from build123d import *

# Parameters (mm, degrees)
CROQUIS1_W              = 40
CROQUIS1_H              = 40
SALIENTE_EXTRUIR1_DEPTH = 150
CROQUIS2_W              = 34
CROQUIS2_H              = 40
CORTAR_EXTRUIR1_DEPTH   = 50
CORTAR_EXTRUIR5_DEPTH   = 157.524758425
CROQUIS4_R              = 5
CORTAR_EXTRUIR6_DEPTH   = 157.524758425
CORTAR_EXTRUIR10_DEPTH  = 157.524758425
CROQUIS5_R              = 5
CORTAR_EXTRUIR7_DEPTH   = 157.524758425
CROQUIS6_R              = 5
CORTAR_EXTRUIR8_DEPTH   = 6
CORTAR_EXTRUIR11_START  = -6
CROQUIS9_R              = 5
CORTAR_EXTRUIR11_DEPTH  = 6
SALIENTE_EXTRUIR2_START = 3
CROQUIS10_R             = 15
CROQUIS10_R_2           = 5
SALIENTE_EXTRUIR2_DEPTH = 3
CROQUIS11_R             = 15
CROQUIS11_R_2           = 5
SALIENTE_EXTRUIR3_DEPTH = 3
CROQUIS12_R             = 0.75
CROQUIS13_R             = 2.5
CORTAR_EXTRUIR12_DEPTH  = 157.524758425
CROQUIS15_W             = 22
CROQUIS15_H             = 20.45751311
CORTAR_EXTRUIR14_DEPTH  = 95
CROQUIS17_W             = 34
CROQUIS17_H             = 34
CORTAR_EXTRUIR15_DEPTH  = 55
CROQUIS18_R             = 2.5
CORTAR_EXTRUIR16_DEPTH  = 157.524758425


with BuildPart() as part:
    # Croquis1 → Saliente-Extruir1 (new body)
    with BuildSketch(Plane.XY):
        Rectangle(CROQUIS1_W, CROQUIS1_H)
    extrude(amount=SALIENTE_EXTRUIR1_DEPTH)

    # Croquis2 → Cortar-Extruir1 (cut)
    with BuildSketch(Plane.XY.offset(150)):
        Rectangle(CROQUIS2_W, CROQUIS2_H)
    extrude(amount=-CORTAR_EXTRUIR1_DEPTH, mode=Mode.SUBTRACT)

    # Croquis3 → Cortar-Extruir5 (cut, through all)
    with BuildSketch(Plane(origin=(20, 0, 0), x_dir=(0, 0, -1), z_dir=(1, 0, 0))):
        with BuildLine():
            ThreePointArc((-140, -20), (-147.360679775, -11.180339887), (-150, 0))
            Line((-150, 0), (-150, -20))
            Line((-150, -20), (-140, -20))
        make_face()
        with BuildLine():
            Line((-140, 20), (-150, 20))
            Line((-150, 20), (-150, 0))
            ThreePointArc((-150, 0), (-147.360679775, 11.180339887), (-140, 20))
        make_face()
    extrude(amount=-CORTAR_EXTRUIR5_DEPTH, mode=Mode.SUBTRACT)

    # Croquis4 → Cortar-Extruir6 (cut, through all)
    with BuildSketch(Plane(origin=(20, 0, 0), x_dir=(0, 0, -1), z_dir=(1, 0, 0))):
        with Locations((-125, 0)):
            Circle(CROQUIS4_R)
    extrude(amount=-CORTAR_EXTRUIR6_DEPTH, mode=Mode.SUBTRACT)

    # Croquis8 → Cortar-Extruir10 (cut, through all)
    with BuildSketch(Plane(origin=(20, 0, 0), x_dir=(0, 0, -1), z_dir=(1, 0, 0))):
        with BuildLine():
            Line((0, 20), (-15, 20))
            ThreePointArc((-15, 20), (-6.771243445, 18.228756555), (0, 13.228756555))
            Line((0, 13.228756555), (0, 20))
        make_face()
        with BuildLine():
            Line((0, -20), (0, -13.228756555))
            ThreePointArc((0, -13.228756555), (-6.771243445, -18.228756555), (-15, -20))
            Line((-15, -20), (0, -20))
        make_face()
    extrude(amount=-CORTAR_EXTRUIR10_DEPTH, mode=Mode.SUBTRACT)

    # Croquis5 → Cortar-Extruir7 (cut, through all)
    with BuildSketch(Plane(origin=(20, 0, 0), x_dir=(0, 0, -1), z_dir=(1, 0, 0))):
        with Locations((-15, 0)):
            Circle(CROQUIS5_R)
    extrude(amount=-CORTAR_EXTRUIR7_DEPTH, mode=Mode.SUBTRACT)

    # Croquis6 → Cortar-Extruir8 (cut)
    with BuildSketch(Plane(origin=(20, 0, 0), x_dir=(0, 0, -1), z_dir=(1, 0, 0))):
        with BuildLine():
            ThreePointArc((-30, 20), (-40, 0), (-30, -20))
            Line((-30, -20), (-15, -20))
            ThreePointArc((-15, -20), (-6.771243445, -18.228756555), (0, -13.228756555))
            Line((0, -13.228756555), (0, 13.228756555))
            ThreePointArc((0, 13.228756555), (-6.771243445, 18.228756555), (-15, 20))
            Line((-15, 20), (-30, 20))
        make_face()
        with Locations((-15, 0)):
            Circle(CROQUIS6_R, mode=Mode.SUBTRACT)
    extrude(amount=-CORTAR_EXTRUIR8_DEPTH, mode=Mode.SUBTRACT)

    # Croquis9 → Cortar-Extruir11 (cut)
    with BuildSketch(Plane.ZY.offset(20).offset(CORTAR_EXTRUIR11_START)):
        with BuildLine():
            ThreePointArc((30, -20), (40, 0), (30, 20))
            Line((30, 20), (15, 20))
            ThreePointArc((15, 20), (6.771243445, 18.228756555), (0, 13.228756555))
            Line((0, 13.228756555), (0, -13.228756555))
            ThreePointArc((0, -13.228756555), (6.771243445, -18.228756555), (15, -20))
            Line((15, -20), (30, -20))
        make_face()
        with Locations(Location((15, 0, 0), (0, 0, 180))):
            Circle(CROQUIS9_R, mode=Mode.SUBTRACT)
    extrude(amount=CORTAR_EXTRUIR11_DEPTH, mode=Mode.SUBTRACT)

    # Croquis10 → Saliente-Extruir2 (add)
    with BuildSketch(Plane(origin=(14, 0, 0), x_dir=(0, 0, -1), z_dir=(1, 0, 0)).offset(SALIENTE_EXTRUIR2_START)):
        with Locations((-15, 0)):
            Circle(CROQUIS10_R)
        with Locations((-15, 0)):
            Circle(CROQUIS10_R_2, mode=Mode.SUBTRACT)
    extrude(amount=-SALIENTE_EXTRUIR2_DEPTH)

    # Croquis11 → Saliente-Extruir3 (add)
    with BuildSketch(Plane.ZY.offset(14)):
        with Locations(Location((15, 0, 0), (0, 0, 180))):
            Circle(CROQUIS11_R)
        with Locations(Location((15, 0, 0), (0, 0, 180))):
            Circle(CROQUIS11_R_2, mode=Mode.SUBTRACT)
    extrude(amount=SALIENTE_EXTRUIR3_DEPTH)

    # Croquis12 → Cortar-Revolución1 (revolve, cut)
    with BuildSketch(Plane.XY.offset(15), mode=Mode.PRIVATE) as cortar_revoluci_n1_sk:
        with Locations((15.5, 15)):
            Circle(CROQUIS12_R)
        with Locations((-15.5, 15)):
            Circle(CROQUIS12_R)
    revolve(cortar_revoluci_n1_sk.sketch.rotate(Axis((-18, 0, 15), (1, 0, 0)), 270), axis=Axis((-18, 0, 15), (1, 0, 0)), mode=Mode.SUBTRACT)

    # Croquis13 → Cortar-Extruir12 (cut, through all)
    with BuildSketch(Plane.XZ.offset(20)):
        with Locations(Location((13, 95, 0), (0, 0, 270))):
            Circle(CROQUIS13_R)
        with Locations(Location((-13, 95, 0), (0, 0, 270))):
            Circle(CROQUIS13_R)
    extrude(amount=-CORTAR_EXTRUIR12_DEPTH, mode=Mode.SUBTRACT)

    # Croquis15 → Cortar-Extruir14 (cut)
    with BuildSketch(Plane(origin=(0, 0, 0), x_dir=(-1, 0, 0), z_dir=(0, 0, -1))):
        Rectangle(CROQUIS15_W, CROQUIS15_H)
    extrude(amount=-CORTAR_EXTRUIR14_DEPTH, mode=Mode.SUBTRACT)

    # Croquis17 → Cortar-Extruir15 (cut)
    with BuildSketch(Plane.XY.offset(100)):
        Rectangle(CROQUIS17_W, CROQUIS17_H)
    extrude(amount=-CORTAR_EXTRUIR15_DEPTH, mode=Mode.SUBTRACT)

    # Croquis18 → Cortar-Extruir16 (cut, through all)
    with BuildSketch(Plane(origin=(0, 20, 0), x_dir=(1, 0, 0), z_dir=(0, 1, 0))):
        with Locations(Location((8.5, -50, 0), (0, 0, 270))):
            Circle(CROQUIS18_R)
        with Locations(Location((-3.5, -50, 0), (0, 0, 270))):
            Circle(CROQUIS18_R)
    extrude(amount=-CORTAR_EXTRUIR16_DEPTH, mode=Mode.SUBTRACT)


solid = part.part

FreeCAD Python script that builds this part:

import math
import FreeCAD as App
import Part
import Sketcher

V = App.Vector
Q = App.Units.Quantity


def add_polygon(sketch, points):
    """Adds a closed chain of lines whose ends are joined by coincident constraints."""
    first, n = sketch.GeometryCount, len(points)
    for a, b in zip(points, points[1:] + points[:1]):
        sketch.addGeometry(Part.LineSegment(App.Vector(*a, 0), App.Vector(*b, 0)), False)
    for i in range(n):
        sketch.addConstraint(Sketcher.Constraint("Coincident", first + i, 2, first + (i + 1) % n, 1))

doc = App.newDocument("Part")
params = doc.addObject("Spreadsheet::Sheet", "Params")
for row, (alias, value) in enumerate([
    ("sketch1_width", "40 mm"),
    ("pad1_length", "150 mm"),
    ("sketch2_width", "34 mm"),
    ("sketch2_height", "40 mm"),
    ("pocket1_length", "50 mm"),
    ("sketch3_radius", "25 mm"),
    ("sketch3_width", "20 mm"),
    ("sketch4_diameter", "10 mm"),
    ("sketch5_radius", "20 mm"),
    ("sketch5_height", "15 mm"),
    ("sketch6_diameter", "10 mm"),
    ("sketch7_diameter", "10 mm"),
    ("sketch7_radius", "25 mm"),
    ("sketch7_radius2", "20 mm"),
    ("pocket6_length", "6 mm"),
    ("sketch8_diameter", "10 mm"),
    ("sketch8_radius", "25 mm"),
    ("sketch8_radius2", "20 mm"),
    ("pocket7_length", "6 mm"),
    ("sketch9_diameter", "30 mm"),
    ("sketch9_diameter2", "10 mm"),
    ("pad2_length", "3 mm"),
    ("sketch10_diameter", "30 mm"),
    ("sketch10_diameter2", "10 mm"),
    ("pad3_length", "3 mm"),
    ("sketch11_diameter", "1.5 mm"),
    ("groove_angle", "360 deg"),
    ("sketch12_diameter", "5 mm"),
    ("sketch13_width", "22 mm"),
    ("pocket9_length", "95 mm"),
    ("sketch14_width", "34 mm"),
    ("pocket10_length", "55 mm"),
    ("sketch15_diameter", "5 mm"),
], start=1):
    params.set(f"A{row}", alias)
    params.set(f"B{row}", "=" + value)
    params.setAlias(f"B{row}", alias)

body = doc.addObject("PartDesign::Body", "Body")

# Sketch on XY plane
sketch1 = doc.addObject("Sketcher::SketchObject", "Sketch")
body.addObject(sketch1)
sketch1.AttachmentSupport = (doc.XY_Plane, [""])
sketch1.MapMode = "FlatFace"
add_polygon(sketch1, [(-20, 20), (-20, -20), (20, -20), (20, 20)])  # lines 0-3
sketch1.addConstraint(Sketcher.Constraint("Vertical", 0))
sketch1.addConstraint(Sketcher.Constraint("Horizontal", 1))
sketch1.addConstraint(Sketcher.Constraint("Vertical", 2))
sketch1.addConstraint(Sketcher.Constraint("Horizontal", 3))
sketch1.addConstraint(Sketcher.Constraint("Symmetric", 0, 2, 2, 2, -1, 1))
sketch1.addConstraint(Sketcher.Constraint("Equal", 3, 0))
sketch1.addConstraint(Sketcher.Constraint("DistanceX", 1, 1, 1, 2, Q("40 mm")))
sketch1.setExpression("Constraints[10]", "Params.sketch1_width")
pad1 = doc.addObject("PartDesign::Pad", "Pad")
body.addObject(pad1)
pad1.Profile = sketch1
pad1.setExpression("Length", "Params.pad1_length")

# Sketch on XY plane
sketch2 = doc.addObject("Sketcher::SketchObject", "Sketch001")
body.addObject(sketch2)
sketch2.AttachmentSupport = (doc.XY_Plane, [""])
sketch2.MapMode = "FlatFace"
sketch2.AttachmentOffset = App.Placement(V(0, 0, 150), App.Rotation())
add_polygon(sketch2, [(-17, 20), (-17, -20), (17, -20), (17, 20)])  # lines 0-3
sketch2.addConstraint(Sketcher.Constraint("Vertical", 0))
sketch2.addConstraint(Sketcher.Constraint("Horizontal", 1))
sketch2.addConstraint(Sketcher.Constraint("Vertical", 2))
sketch2.addConstraint(Sketcher.Constraint("Horizontal", 3))
sketch2.addConstraint(Sketcher.Constraint("Symmetric", 0, 2, 2, 2, -1, 1))
sketch2.addConstraint(Sketcher.Constraint("DistanceX", 1, 1, 1, 2, Q("34 mm")))
sketch2.addConstraint(Sketcher.Constraint("DistanceY", 0, 2, 0, 1, Q("40 mm")))
sketch2.setExpression("Constraints[9]", "Params.sketch2_width")
sketch2.setExpression("Constraints[10]", "Params.sketch2_height")
pocket1 = doc.addObject("PartDesign::Pocket", "Pocket")
body.addObject(pocket1)
pocket1.Profile = sketch2
pocket1.setExpression("Length", "Params.pocket1_length")

# Sketch on YZ plane
sketch3 = doc.addObject("Sketcher::SketchObject", "Sketch002")
body.addObject(sketch3)
sketch3.AttachmentSupport = (doc.YZ_Plane, [""])
sketch3.MapMode = "FlatFace"
sketch3.AttachmentOffset = App.Placement(V(0, 0, 20), App.Rotation())
sketch3.addGeometry(Part.ArcOfCircle(Part.Circle(V(0, 125, 0), V(0, 0, 1), 25), math.radians(90), math.radians(143.130102)), False)
sketch3.addGeometry(Part.LineSegment(V(0, 150, 0), V(-20, 150, 0)), False)
sketch3.addGeometry(Part.LineSegment(V(-20, 150, 0), V(-20, 140, 0)), False)
sketch3.addGeometry(Part.LineSegment(V(20, 140, 0), V(20, 150, 0)), False)
sketch3.addGeometry(Part.LineSegment(V(20, 150, 0), V(0, 150, 0)), False)
sketch3.addGeometry(Part.ArcOfCircle(Part.Circle(V(0, 125, 0), V(0, 0, 1), 25), math.radians(36.869898), math.radians(90)), False)
sketch3.addConstraint(Sketcher.Constraint("Tangent", 0, 1, 1, 1))
sketch3.addConstraint(Sketcher.Constraint("Coincident", 1, 2, 2, 1))
sketch3.addConstraint(Sketcher.Constraint("Coincident", 2, 2, 0, 2))
sketch3.addConstraint(Sketcher.Constraint("Coincident", 3, 2, 4, 1))
sketch3.addConstraint(Sketcher.Constraint("Tangent", 4, 2, 5, 2))
sketch3.addConstraint(Sketcher.Constraint("Coincident", 5, 1, 3, 1))
sketch3.addConstraint(Sketcher.Constraint("Horizontal", 1))
sketch3.addConstraint(Sketcher.Constraint("Vertical", 2))
sketch3.addConstraint(Sketcher.Constraint("Vertical", 3))
sketch3.addConstraint(Sketcher.Constraint("Horizontal", 4))
sketch3.addConstraint(Sketcher.Constraint("Coincident", 5, 3, 0, 3))
sketch3.addConstraint(Sketcher.Constraint("Equal", 0, 5))
sketch3.addConstraint(Sketcher.Constraint("Symmetric", 2, 2, 5, 1, -2))
sketch3.addConstraint(Sketcher.Constraint("Radius", 0, Q("25 mm")))
sketch3.addConstraint(Sketcher.Constraint("DistanceX", 1, 2, 1, 1, Q("20 mm")))
sketch3.addConstraint(Sketcher.Constraint("DistanceY", -1, 1, 0, 3, Q("125 mm")))
sketch3.setExpression("Constraints[13]", "Params.sketch3_radius")
sketch3.setExpression("Constraints[14]", "Params.sketch3_width")
pocket2 = doc.addObject("PartDesign::Pocket", "Pocket001")
body.addObject(pocket2)
pocket2.Profile = sketch3
pocket2.Type = "ThroughAll"

# Sketch on YZ plane
sketch4 = doc.addObject("Sketcher::SketchObject", "Sketch003")
body.addObject(sketch4)
sketch4.AttachmentSupport = (doc.YZ_Plane, [""])
sketch4.MapMode = "FlatFace"
sketch4.AttachmentOffset = App.Placement(V(0, 0, 20), App.Rotation())
sketch4.addGeometry(Part.Circle(V(0, 125, 0), V(0, 0, 1), 5), False)
sketch4.addConstraint(Sketcher.Constraint("PointOnObject", 0, 3, -2))
sketch4.addConstraint(Sketcher.Constraint("Diameter", 0, Q("10 mm")))
sketch4.addConstraint(Sketcher.Constraint("DistanceY", -1, 1, 0, 3, Q("125 mm")))
sketch4.setExpression("Constraints[1]", "Params.sketch4_diameter")
pocket3 = doc.addObject("PartDesign::Pocket", "Pocket002")
body.addObject(pocket3)
pocket3.Profile = sketch4
pocket3.Type = "ThroughAll"

# Sketch on YZ plane
sketch5 = doc.addObject("Sketcher::SketchObject", "Sketch004")
body.addObject(sketch5)
sketch5.AttachmentSupport = (doc.YZ_Plane, [""])
sketch5.MapMode = "FlatFace"
sketch5.AttachmentOffset = App.Placement(V(0, 0, 20), App.Rotation())
sketch5.addGeometry(Part.LineSegment(V(20, 0, 0), V(20, 15, 0)), False)
sketch5.addGeometry(Part.ArcOfCircle(Part.Circle(V(0, 15, 0), V(0, 0, 1), 20), math.radians(-48.590378), math.radians(0)), False)
sketch5.addGeometry(Part.LineSegment(V(13.228757, 0, 0), V(20, 0, 0)), False)
sketch5.addGeometry(Part.LineSegment(V(-20, 0, 0), V(-13.228757, 0, 0)), False)
sketch5.addGeometry(Part.ArcOfCircle(Part.Circle(V(0, 15, 0), V(0, 0, 1), 20), math.radians(-180), math.radians(-131.409622)), False)
sketch5.addGeometry(Part.LineSegment(V(-20, 15, 0), V(-20, 0, 0)), False)
sketch5.addConstraint(Sketcher.Constraint("Tangent", 0, 2, 1, 2))
sketch5.addConstraint(Sketcher.Constraint("Coincident", 1, 1, 2, 1))
sketch5.addConstraint(Sketcher.Constraint("Coincident", 2, 2, 0, 1))
sketch5.addConstraint(Sketcher.Constraint("Coincident", 3, 2, 4, 2))
sketch5.addConstraint(Sketcher.Constraint("Tangent", 4, 1, 5, 1))
sketch5.addConstraint(Sketcher.Constraint("Coincident", 5, 2, 3, 1))
sketch5.addConstraint(Sketcher.Constraint("Vertical", 0))
sketch5.addConstraint(Sketcher.Constraint("Horizontal", 2))
sketch5.addConstraint(Sketcher.Constraint("Horizontal", 3))
sketch5.addConstraint(Sketcher.Constraint("Vertical", 5))
sketch5.addConstraint(Sketcher.Constraint("Coincident", 4, 3, 1, 3))
sketch5.addConstraint(Sketcher.Constraint("Equal", 1, 4))
sketch5.addConstraint(Sketcher.Constraint("Symmetric", 1, 1, 3, 2, -1, 1))
sketch5.addConstraint(Sketcher.Constraint("PointOnObject", 1, 3, -2))
sketch5.addConstraint(Sketcher.Constraint("Radius", 1, Q("20 mm")))
sketch5.addConstraint(Sketcher.Constraint("DistanceY", 0, 1, 0, 2, Q("15 mm")))
sketch5.setExpression("Constraints[14]", "Params.sketch5_radius")
sketch5.setExpression("Constraints[15]", "Params.sketch5_height")
pocket4 = doc.addObject("PartDesign::Pocket", "Pocket003")
body.addObject(pocket4)
pocket4.Profile = sketch5
pocket4.Type = "ThroughAll"

# Sketch on YZ plane
sketch6 = doc.addObject("Sketcher::SketchObject", "Sketch005")
body.addObject(sketch6)
sketch6.AttachmentSupport = (doc.YZ_Plane, [""])
sketch6.MapMode = "FlatFace"
sketch6.AttachmentOffset = App.Placement(V(0, 0, 20), App.Rotation())
sketch6.addGeometry(Part.Circle(V(0, 15, 0), V(0, 0, 1), 5), False)
sketch6.addConstraint(Sketcher.Constraint("PointOnObject", 0, 3, -2))
sketch6.addConstraint(Sketcher.Constraint("Diameter", 0, Q("10 mm")))
sketch6.addConstraint(Sketcher.Constraint("DistanceY", -1, 1, 0, 3, Q("15 mm")))
sketch6.setExpression("Constraints[1]", "Params.sketch6_diameter")
pocket5 = doc.addObject("PartDesign::Pocket", "Pocket004")
body.addObject(pocket5)
pocket5.Profile = sketch6
pocket5.Type = "ThroughAll"

# Sketch on YZ plane
sketch7 = doc.addObject("Sketcher::SketchObject", "Sketch006")
body.addObject(sketch7)
sketch7.AttachmentSupport = (doc.YZ_Plane, [""])
sketch7.MapMode = "FlatFace"
sketch7.AttachmentOffset = App.Placement(V(0, 0, 20), App.Rotation())
sketch7.addGeometry(Part.ArcOfCircle(Part.Circle(V(0, 15, 0), V(0, 0, 1), 25), math.radians(36.869898), math.radians(143.130102)), False)
sketch7.addGeometry(Part.LineSegment(V(-20, 30, 0), V(-20, 15, 0)), False)
sketch7.addGeometry(Part.ArcOfCircle(Part.Circle(V(0, 15, 0), V(0, 0, 1), 20), math.radians(-180), math.radians(-131.409622)), False)
sketch7.addGeometry(Part.LineSegment(V(-13.228757, 0, 0), V(13.228757, 0, 0)), False)
sketch7.addGeometry(Part.ArcOfCircle(Part.Circle(V(0, 15, 0), V(0, 0, 1), 20), math.radians(-48.590378), math.radians(0)), False)
sketch7.addGeometry(Part.LineSegment(V(20, 15, 0), V(20, 30, 0)), False)
sketch7.addGeometry(Part.Circle(V(0, 15, 0), V(0, 0, 1), 5), False)
sketch7.addConstraint(Sketcher.Constraint("Coincident", 0, 2, 1, 1))
sketch7.addConstraint(Sketcher.Constraint("Tangent", 1, 2, 2, 1))
sketch7.addConstraint(Sketcher.Constraint("Coincident", 2, 2, 3, 1))
sketch7.addConstraint(Sketcher.Constraint("Coincident", 3, 2, 4, 1))
sketch7.addConstraint(Sketcher.Constraint("Tangent", 4, 2, 5, 1))
sketch7.addConstraint(Sketcher.Constraint("Coincident", 5, 2, 0, 1))
sketch7.addConstraint(Sketcher.Constraint("Vertical", 1))
sketch7.addConstraint(Sketcher.Constraint("Horizontal", 3))
sketch7.addConstraint(Sketcher.Constraint("Vertical", 5))
sketch7.addConstraint(Sketcher.Constraint("Coincident", 2, 3, 0, 3))
sketch7.addConstraint(Sketcher.Constraint("Coincident", 4, 3, 0, 3))
sketch7.addConstraint(Sketcher.Constraint("Coincident", 6, 3, 0, 3))
sketch7.addConstraint(Sketcher.Constraint("Equal", 2, 4))
sketch7.addConstraint(Sketcher.Constraint("Symmetric", 2, 2, 3, 2, -1, 1))
sketch7.addConstraint(Sketcher.Constraint("Diameter", 6, Q("10 mm")))
sketch7.addConstraint(Sketcher.Constraint("Radius", 0, Q("25 mm")))
sketch7.addConstraint(Sketcher.Constraint("Radius", 2, Q("20 mm")))
sketch7.addConstraint(Sketcher.Constraint("DistanceY", -1, 1, 0, 3, Q("15 mm")))
sketch7.setExpression("Constraints[14]", "Params.sketch7_diameter")
sketch7.setExpression("Constraints[15]", "Params.sketch7_radius")
sketch7.setExpression("Constraints[16]", "Params.sketch7_radius2")
pocket6 = doc.addObject("PartDesign::Pocket", "Pocket005")
body.addObject(pocket6)
pocket6.Profile = sketch7
pocket6.setExpression("Length", "Params.pocket6_length")

# Sketch on YZ plane
sketch8 = doc.addObject("Sketcher::SketchObject", "Sketch007")
body.addObject(sketch8)
sketch8.AttachmentSupport = (doc.YZ_Plane, [""])
sketch8.MapMode = "FlatFace"
sketch8.AttachmentOffset = App.Placement(V(0, 0, -14), App.Rotation())
sketch8.addGeometry(Part.ArcOfCircle(Part.Circle(V(0, 15, 0), V(0, 0, 1), 25), math.radians(36.869898), math.radians(143.130102)), False)
sketch8.addGeometry(Part.LineSegment(V(20, 30, 0), V(20, 15, 0)), False)
sketch8.addGeometry(Part.ArcOfCircle(Part.Circle(V(0, 15, 0), V(0, 0, 1), 20), math.radians(-48.590378), math.radians(0)), False)
sketch8.addGeometry(Part.LineSegment(V(13.228757, 0, 0), V(-13.228757, 0, 0)), False)
sketch8.addGeometry(Part.ArcOfCircle(Part.Circle(V(0, 15, 0), V(0, 0, 1), 20), math.radians(-180), math.radians(-131.409622)), False)
sketch8.addGeometry(Part.LineSegment(V(-20, 15, 0), V(-20, 30, 0)), False)
sketch8.addGeometry(Part.Circle(V(0, 15, 0), V(0, 0, 1), 5), False)
sketch8.addConstraint(Sketcher.Constraint("Coincident", 0, 1, 1, 1))
sketch8.addConstraint(Sketcher.Constraint("Tangent", 1, 2, 2, 2))
sketch8.addConstraint(Sketcher.Constraint("Coincident", 2, 1, 3, 1))
sketch8.addConstraint(Sketcher.Constraint("Coincident", 3, 2, 4, 2))
sketch8.addConstraint(Sketcher.Constraint("Tangent", 4, 1, 5, 1))
sketch8.addConstraint(Sketcher.Constraint("Coincident", 5, 2, 0, 2))
sketch8.addConstraint(Sketcher.Constraint("Vertical", 1))
sketch8.addConstraint(Sketcher.Constraint("Horizontal", 3))
sketch8.addConstraint(Sketcher.Constraint("Vertical", 5))
sketch8.addConstraint(Sketcher.Constraint("Coincident", 2, 3, 0, 3))
sketch8.addConstraint(Sketcher.Constraint("Coincident", 4, 3, 0, 3))
sketch8.addConstraint(Sketcher.Constraint("Coincident", 6, 3, 0, 3))
sketch8.addConstraint(Sketcher.Constraint("Equal", 2, 4))
sketch8.addConstraint(Sketcher.Constraint("Symmetric", 2, 1, 3, 2, -1, 1))
sketch8.addConstraint(Sketcher.Constraint("Diameter", 6, Q("10 mm")))
sketch8.addConstraint(Sketcher.Constraint("Radius", 0, Q("25 mm")))
sketch8.addConstraint(Sketcher.Constraint("Radius", 2, Q("20 mm")))
sketch8.addConstraint(Sketcher.Constraint("DistanceY", -1, 1, 0, 3, Q("15 mm")))
sketch8.setExpression("Constraints[14]", "Params.sketch8_diameter")
sketch8.setExpression("Constraints[15]", "Params.sketch8_radius")
sketch8.setExpression("Constraints[16]", "Params.sketch8_radius2")
pocket7 = doc.addObject("PartDesign::Pocket", "Pocket006")
body.addObject(pocket7)
pocket7.Profile = sketch8
pocket7.setExpression("Length", "Params.pocket7_length")

# Sketch on YZ plane
sketch9 = doc.addObject("Sketcher::SketchObject", "Sketch008")
body.addObject(sketch9)
sketch9.AttachmentSupport = (doc.YZ_Plane, [""])
sketch9.MapMode = "FlatFace"
sketch9.AttachmentOffset = App.Placement(V(0, 0, 17), App.Rotation())
sketch9.addGeometry(Part.Circle(V(0, 15, 0), V(0, 0, 1), 15), False)
sketch9.addGeometry(Part.Circle(V(0, 15, 0), V(0, 0, 1), 5), False)
sketch9.addConstraint(Sketcher.Constraint("Coincident", 1, 3, 0, 3))
sketch9.addConstraint(Sketcher.Constraint("PointOnObject", 0, 3, -2))
sketch9.addConstraint(Sketcher.Constraint("Diameter", 0, Q("30 mm")))
sketch9.addConstraint(Sketcher.Constraint("Diameter", 1, Q("10 mm")))
sketch9.addConstraint(Sketcher.Constraint("DistanceY", -1, 1, 0, 3, Q("15 mm")))
sketch9.setExpression("Constraints[2]", "Params.sketch9_diameter")
sketch9.setExpression("Constraints[3]", "Params.sketch9_diameter2")
pad2 = doc.addObject("PartDesign::Pad", "Pad001")
body.addObject(pad2)
pad2.Profile = sketch9
pad2.setExpression("Length", "Params.pad2_length")
pad2.Reversed = True

# Sketch on YZ plane
sketch10 = doc.addObject("Sketcher::SketchObject", "Sketch009")
body.addObject(sketch10)
sketch10.AttachmentSupport = (doc.YZ_Plane, [""])
sketch10.MapMode = "FlatFace"
sketch10.AttachmentOffset = App.Placement(V(0, 0, -14), App.Rotation())
sketch10.addGeometry(Part.Circle(V(0, 15, 0), V(0, 0, 1), 15), False)
sketch10.addGeometry(Part.Circle(V(0, 15, 0), V(0, 0, 1), 5), False)
sketch10.addConstraint(Sketcher.Constraint("Coincident", 1, 3, 0, 3))
sketch10.addConstraint(Sketcher.Constraint("PointOnObject", 0, 3, -2))
sketch10.addConstraint(Sketcher.Constraint("Diameter", 0, Q("30 mm")))
sketch10.addConstraint(Sketcher.Constraint("Diameter", 1, Q("10 mm")))
sketch10.addConstraint(Sketcher.Constraint("DistanceY", -1, 1, 0, 3, Q("15 mm")))
sketch10.setExpression("Constraints[2]", "Params.sketch10_diameter")
sketch10.setExpression("Constraints[3]", "Params.sketch10_diameter2")
pad3 = doc.addObject("PartDesign::Pad", "Pad002")
body.addObject(pad3)
pad3.Profile = sketch10
pad3.setExpression("Length", "Params.pad3_length")
pad3.Reversed = True

# Sketch on XY plane
sketch11 = doc.addObject("Sketcher::SketchObject", "Sketch010")
body.addObject(sketch11)
sketch11.AttachmentSupport = (doc.XY_Plane, [""])
sketch11.MapMode = "FlatFace"
sketch11.AttachmentOffset = App.Placement(V(0, 0, 15), App.Rotation())
sketch11.addGeometry(Part.Circle(V(15.5, 15, 0), V(0, 0, 1), 0.75), False)
sketch11.addGeometry(Part.Circle(V(-15.5, 15, 0), V(0, 0, 1), 0.75), False)
sketch11.addConstraint(Sketcher.Constraint("Equal", 0, 1))
sketch11.addConstraint(Sketcher.Constraint("Symmetric", 0, 3, 1, 3, -2))
sketch11.addConstraint(Sketcher.Constraint("Diameter", 0, Q("1.5 mm")))
sketch11.addConstraint(Sketcher.Constraint("DistanceY", -1, 1, 0, 3, Q("15 mm")))
sketch11.addConstraint(Sketcher.Constraint("DistanceX", 1, 3, 0, 3, Q("31 mm")))
sketch11.setExpression("Constraints[2]", "Params.sketch11_diameter")
groove = doc.addObject("PartDesign::Groove", "Groove")
body.addObject(groove)
groove.Profile = sketch11
groove.ReferenceAxis = (sketch11, ["H_Axis"])
groove.setExpression("Angle", "Params.groove_angle")

# Sketch on XZ plane
sketch12 = doc.addObject("Sketcher::SketchObject", "Sketch011")
body.addObject(sketch12)
sketch12.AttachmentSupport = (doc.XZ_Plane, [""])
sketch12.MapMode = "FlatFace"
sketch12.AttachmentOffset = App.Placement(V(0, 0, 20), App.Rotation())
sketch12.addGeometry(Part.Circle(V(13, 95, 0), V(0, 0, 1), 2.5), False)
sketch12.addGeometry(Part.Circle(V(-13, 95, 0), V(0, 0, 1), 2.5), False)
sketch12.addConstraint(Sketcher.Constraint("Equal", 0, 1))
sketch12.addConstraint(Sketcher.Constraint("Symmetric", 0, 3, 1, 3, -2))
sketch12.addConstraint(Sketcher.Constraint("Diameter", 0, Q("5 mm")))
sketch12.addConstraint(Sketcher.Constraint("DistanceX", -1, 1, 0, 3, Q("13 mm")))
sketch12.addConstraint(Sketcher.Constraint("DistanceY", -1, 1, 0, 3, Q("95 mm")))
sketch12.setExpression("Constraints[2]", "Params.sketch12_diameter")
pocket8 = doc.addObject("PartDesign::Pocket", "Pocket007")
body.addObject(pocket8)
pocket8.Profile = sketch12
pocket8.Type = "ThroughAll"

# Sketch on XY plane
sketch13 = doc.addObject("Sketcher::SketchObject", "Sketch012")
body.addObject(sketch13)
sketch13.AttachmentSupport = (doc.XY_Plane, [""])
sketch13.MapMode = "FlatFace"
add_polygon(sketch13, [(11, 10.228757), (11, -10.228757), (-11, -10.228757), (-11, 10.228757)])  # lines 0-3
sketch13.addConstraint(Sketcher.Constraint("Vertical", 0))
sketch13.addConstraint(Sketcher.Constraint("Horizontal", 1))
sketch13.addConstraint(Sketcher.Constraint("Vertical", 2))
sketch13.addConstraint(Sketcher.Constraint("Horizontal", 3))
sketch13.addConstraint(Sketcher.Constraint("Symmetric", 0, 2, 2, 2, -1, 1))
sketch13.addConstraint(Sketcher.Constraint("DistanceX", 1, 2, 1, 1, Q("22 mm")))
sketch13.addConstraint(Sketcher.Constraint("DistanceY", 0, 2, 0, 1, Q("20.457513 mm")))
sketch13.setExpression("Constraints[9]", "Params.sketch13_width")
pocket9 = doc.addObject("PartDesign::Pocket", "Pocket008")
body.addObject(pocket9)
pocket9.Profile = sketch13
pocket9.setExpression("Length", "Params.pocket9_length")
pocket9.Reversed = True

# Sketch on XY plane
sketch14 = doc.addObject("Sketcher::SketchObject", "Sketch013")
body.addObject(sketch14)
sketch14.AttachmentSupport = (doc.XY_Plane, [""])
sketch14.MapMode = "FlatFace"
sketch14.AttachmentOffset = App.Placement(V(0, 0, 100), App.Rotation())
add_polygon(sketch14, [(-17, 17), (-17, -17), (17, -17), (17, 17)])  # lines 0-3
sketch14.addConstraint(Sketcher.Constraint("Vertical", 0))
sketch14.addConstraint(Sketcher.Constraint("Horizontal", 1))
sketch14.addConstraint(Sketcher.Constraint("Vertical", 2))
sketch14.addConstraint(Sketcher.Constraint("Horizontal", 3))
sketch14.addConstraint(Sketcher.Constraint("Symmetric", 0, 2, 2, 2, -1, 1))
sketch14.addConstraint(Sketcher.Constraint("Equal", 3, 0))
sketch14.addConstraint(Sketcher.Constraint("DistanceX", 1, 1, 1, 2, Q("34 mm")))
sketch14.setExpression("Constraints[10]", "Params.sketch14_width")
pocket10 = doc.addObject("PartDesign::Pocket", "Pocket009")
body.addObject(pocket10)
pocket10.Profile = sketch14
pocket10.setExpression("Length", "Params.pocket10_length")

# Sketch on XZ plane
sketch15 = doc.addObject("Sketcher::SketchObject", "Sketch014")
body.addObject(sketch15)
sketch15.AttachmentSupport = (doc.XZ_Plane, [""])
sketch15.MapMode = "FlatFace"
sketch15.AttachmentOffset = App.Placement(V(0, 0, -20), App.Rotation())
sketch15.addGeometry(Part.Circle(V(8.5, 50, 0), V(0, 0, 1), 2.5), False)
sketch15.addGeometry(Part.Circle(V(-3.5, 50, 0), V(0, 0, 1), 2.5), False)
sketch15.addConstraint(Sketcher.Constraint("Equal", 0, 1))
sketch15.addConstraint(Sketcher.Constraint("Horizontal", 0, 3, 1, 3))
sketch15.addConstraint(Sketcher.Constraint("Diameter", 0, Q("5 mm")))
sketch15.addConstraint(Sketcher.Constraint("DistanceY", -1, 1, 0, 3, Q("50 mm")))
sketch15.addConstraint(Sketcher.Constraint("DistanceX", 1, 3, 0, 3, Q("12 mm")))
sketch15.addConstraint(Sketcher.Constraint("DistanceX", -1, 1, 0, 3, Q("8.5 mm")))
sketch15.setExpression("Constraints[2]", "Params.sketch15_diameter")
pocket11 = doc.addObject("PartDesign::Pocket", "Pocket010")
body.addObject(pocket11)
pocket11.Profile = sketch15
pocket11.Type = "ThroughAll"
pocket11.Reversed = True

doc.recompute()
